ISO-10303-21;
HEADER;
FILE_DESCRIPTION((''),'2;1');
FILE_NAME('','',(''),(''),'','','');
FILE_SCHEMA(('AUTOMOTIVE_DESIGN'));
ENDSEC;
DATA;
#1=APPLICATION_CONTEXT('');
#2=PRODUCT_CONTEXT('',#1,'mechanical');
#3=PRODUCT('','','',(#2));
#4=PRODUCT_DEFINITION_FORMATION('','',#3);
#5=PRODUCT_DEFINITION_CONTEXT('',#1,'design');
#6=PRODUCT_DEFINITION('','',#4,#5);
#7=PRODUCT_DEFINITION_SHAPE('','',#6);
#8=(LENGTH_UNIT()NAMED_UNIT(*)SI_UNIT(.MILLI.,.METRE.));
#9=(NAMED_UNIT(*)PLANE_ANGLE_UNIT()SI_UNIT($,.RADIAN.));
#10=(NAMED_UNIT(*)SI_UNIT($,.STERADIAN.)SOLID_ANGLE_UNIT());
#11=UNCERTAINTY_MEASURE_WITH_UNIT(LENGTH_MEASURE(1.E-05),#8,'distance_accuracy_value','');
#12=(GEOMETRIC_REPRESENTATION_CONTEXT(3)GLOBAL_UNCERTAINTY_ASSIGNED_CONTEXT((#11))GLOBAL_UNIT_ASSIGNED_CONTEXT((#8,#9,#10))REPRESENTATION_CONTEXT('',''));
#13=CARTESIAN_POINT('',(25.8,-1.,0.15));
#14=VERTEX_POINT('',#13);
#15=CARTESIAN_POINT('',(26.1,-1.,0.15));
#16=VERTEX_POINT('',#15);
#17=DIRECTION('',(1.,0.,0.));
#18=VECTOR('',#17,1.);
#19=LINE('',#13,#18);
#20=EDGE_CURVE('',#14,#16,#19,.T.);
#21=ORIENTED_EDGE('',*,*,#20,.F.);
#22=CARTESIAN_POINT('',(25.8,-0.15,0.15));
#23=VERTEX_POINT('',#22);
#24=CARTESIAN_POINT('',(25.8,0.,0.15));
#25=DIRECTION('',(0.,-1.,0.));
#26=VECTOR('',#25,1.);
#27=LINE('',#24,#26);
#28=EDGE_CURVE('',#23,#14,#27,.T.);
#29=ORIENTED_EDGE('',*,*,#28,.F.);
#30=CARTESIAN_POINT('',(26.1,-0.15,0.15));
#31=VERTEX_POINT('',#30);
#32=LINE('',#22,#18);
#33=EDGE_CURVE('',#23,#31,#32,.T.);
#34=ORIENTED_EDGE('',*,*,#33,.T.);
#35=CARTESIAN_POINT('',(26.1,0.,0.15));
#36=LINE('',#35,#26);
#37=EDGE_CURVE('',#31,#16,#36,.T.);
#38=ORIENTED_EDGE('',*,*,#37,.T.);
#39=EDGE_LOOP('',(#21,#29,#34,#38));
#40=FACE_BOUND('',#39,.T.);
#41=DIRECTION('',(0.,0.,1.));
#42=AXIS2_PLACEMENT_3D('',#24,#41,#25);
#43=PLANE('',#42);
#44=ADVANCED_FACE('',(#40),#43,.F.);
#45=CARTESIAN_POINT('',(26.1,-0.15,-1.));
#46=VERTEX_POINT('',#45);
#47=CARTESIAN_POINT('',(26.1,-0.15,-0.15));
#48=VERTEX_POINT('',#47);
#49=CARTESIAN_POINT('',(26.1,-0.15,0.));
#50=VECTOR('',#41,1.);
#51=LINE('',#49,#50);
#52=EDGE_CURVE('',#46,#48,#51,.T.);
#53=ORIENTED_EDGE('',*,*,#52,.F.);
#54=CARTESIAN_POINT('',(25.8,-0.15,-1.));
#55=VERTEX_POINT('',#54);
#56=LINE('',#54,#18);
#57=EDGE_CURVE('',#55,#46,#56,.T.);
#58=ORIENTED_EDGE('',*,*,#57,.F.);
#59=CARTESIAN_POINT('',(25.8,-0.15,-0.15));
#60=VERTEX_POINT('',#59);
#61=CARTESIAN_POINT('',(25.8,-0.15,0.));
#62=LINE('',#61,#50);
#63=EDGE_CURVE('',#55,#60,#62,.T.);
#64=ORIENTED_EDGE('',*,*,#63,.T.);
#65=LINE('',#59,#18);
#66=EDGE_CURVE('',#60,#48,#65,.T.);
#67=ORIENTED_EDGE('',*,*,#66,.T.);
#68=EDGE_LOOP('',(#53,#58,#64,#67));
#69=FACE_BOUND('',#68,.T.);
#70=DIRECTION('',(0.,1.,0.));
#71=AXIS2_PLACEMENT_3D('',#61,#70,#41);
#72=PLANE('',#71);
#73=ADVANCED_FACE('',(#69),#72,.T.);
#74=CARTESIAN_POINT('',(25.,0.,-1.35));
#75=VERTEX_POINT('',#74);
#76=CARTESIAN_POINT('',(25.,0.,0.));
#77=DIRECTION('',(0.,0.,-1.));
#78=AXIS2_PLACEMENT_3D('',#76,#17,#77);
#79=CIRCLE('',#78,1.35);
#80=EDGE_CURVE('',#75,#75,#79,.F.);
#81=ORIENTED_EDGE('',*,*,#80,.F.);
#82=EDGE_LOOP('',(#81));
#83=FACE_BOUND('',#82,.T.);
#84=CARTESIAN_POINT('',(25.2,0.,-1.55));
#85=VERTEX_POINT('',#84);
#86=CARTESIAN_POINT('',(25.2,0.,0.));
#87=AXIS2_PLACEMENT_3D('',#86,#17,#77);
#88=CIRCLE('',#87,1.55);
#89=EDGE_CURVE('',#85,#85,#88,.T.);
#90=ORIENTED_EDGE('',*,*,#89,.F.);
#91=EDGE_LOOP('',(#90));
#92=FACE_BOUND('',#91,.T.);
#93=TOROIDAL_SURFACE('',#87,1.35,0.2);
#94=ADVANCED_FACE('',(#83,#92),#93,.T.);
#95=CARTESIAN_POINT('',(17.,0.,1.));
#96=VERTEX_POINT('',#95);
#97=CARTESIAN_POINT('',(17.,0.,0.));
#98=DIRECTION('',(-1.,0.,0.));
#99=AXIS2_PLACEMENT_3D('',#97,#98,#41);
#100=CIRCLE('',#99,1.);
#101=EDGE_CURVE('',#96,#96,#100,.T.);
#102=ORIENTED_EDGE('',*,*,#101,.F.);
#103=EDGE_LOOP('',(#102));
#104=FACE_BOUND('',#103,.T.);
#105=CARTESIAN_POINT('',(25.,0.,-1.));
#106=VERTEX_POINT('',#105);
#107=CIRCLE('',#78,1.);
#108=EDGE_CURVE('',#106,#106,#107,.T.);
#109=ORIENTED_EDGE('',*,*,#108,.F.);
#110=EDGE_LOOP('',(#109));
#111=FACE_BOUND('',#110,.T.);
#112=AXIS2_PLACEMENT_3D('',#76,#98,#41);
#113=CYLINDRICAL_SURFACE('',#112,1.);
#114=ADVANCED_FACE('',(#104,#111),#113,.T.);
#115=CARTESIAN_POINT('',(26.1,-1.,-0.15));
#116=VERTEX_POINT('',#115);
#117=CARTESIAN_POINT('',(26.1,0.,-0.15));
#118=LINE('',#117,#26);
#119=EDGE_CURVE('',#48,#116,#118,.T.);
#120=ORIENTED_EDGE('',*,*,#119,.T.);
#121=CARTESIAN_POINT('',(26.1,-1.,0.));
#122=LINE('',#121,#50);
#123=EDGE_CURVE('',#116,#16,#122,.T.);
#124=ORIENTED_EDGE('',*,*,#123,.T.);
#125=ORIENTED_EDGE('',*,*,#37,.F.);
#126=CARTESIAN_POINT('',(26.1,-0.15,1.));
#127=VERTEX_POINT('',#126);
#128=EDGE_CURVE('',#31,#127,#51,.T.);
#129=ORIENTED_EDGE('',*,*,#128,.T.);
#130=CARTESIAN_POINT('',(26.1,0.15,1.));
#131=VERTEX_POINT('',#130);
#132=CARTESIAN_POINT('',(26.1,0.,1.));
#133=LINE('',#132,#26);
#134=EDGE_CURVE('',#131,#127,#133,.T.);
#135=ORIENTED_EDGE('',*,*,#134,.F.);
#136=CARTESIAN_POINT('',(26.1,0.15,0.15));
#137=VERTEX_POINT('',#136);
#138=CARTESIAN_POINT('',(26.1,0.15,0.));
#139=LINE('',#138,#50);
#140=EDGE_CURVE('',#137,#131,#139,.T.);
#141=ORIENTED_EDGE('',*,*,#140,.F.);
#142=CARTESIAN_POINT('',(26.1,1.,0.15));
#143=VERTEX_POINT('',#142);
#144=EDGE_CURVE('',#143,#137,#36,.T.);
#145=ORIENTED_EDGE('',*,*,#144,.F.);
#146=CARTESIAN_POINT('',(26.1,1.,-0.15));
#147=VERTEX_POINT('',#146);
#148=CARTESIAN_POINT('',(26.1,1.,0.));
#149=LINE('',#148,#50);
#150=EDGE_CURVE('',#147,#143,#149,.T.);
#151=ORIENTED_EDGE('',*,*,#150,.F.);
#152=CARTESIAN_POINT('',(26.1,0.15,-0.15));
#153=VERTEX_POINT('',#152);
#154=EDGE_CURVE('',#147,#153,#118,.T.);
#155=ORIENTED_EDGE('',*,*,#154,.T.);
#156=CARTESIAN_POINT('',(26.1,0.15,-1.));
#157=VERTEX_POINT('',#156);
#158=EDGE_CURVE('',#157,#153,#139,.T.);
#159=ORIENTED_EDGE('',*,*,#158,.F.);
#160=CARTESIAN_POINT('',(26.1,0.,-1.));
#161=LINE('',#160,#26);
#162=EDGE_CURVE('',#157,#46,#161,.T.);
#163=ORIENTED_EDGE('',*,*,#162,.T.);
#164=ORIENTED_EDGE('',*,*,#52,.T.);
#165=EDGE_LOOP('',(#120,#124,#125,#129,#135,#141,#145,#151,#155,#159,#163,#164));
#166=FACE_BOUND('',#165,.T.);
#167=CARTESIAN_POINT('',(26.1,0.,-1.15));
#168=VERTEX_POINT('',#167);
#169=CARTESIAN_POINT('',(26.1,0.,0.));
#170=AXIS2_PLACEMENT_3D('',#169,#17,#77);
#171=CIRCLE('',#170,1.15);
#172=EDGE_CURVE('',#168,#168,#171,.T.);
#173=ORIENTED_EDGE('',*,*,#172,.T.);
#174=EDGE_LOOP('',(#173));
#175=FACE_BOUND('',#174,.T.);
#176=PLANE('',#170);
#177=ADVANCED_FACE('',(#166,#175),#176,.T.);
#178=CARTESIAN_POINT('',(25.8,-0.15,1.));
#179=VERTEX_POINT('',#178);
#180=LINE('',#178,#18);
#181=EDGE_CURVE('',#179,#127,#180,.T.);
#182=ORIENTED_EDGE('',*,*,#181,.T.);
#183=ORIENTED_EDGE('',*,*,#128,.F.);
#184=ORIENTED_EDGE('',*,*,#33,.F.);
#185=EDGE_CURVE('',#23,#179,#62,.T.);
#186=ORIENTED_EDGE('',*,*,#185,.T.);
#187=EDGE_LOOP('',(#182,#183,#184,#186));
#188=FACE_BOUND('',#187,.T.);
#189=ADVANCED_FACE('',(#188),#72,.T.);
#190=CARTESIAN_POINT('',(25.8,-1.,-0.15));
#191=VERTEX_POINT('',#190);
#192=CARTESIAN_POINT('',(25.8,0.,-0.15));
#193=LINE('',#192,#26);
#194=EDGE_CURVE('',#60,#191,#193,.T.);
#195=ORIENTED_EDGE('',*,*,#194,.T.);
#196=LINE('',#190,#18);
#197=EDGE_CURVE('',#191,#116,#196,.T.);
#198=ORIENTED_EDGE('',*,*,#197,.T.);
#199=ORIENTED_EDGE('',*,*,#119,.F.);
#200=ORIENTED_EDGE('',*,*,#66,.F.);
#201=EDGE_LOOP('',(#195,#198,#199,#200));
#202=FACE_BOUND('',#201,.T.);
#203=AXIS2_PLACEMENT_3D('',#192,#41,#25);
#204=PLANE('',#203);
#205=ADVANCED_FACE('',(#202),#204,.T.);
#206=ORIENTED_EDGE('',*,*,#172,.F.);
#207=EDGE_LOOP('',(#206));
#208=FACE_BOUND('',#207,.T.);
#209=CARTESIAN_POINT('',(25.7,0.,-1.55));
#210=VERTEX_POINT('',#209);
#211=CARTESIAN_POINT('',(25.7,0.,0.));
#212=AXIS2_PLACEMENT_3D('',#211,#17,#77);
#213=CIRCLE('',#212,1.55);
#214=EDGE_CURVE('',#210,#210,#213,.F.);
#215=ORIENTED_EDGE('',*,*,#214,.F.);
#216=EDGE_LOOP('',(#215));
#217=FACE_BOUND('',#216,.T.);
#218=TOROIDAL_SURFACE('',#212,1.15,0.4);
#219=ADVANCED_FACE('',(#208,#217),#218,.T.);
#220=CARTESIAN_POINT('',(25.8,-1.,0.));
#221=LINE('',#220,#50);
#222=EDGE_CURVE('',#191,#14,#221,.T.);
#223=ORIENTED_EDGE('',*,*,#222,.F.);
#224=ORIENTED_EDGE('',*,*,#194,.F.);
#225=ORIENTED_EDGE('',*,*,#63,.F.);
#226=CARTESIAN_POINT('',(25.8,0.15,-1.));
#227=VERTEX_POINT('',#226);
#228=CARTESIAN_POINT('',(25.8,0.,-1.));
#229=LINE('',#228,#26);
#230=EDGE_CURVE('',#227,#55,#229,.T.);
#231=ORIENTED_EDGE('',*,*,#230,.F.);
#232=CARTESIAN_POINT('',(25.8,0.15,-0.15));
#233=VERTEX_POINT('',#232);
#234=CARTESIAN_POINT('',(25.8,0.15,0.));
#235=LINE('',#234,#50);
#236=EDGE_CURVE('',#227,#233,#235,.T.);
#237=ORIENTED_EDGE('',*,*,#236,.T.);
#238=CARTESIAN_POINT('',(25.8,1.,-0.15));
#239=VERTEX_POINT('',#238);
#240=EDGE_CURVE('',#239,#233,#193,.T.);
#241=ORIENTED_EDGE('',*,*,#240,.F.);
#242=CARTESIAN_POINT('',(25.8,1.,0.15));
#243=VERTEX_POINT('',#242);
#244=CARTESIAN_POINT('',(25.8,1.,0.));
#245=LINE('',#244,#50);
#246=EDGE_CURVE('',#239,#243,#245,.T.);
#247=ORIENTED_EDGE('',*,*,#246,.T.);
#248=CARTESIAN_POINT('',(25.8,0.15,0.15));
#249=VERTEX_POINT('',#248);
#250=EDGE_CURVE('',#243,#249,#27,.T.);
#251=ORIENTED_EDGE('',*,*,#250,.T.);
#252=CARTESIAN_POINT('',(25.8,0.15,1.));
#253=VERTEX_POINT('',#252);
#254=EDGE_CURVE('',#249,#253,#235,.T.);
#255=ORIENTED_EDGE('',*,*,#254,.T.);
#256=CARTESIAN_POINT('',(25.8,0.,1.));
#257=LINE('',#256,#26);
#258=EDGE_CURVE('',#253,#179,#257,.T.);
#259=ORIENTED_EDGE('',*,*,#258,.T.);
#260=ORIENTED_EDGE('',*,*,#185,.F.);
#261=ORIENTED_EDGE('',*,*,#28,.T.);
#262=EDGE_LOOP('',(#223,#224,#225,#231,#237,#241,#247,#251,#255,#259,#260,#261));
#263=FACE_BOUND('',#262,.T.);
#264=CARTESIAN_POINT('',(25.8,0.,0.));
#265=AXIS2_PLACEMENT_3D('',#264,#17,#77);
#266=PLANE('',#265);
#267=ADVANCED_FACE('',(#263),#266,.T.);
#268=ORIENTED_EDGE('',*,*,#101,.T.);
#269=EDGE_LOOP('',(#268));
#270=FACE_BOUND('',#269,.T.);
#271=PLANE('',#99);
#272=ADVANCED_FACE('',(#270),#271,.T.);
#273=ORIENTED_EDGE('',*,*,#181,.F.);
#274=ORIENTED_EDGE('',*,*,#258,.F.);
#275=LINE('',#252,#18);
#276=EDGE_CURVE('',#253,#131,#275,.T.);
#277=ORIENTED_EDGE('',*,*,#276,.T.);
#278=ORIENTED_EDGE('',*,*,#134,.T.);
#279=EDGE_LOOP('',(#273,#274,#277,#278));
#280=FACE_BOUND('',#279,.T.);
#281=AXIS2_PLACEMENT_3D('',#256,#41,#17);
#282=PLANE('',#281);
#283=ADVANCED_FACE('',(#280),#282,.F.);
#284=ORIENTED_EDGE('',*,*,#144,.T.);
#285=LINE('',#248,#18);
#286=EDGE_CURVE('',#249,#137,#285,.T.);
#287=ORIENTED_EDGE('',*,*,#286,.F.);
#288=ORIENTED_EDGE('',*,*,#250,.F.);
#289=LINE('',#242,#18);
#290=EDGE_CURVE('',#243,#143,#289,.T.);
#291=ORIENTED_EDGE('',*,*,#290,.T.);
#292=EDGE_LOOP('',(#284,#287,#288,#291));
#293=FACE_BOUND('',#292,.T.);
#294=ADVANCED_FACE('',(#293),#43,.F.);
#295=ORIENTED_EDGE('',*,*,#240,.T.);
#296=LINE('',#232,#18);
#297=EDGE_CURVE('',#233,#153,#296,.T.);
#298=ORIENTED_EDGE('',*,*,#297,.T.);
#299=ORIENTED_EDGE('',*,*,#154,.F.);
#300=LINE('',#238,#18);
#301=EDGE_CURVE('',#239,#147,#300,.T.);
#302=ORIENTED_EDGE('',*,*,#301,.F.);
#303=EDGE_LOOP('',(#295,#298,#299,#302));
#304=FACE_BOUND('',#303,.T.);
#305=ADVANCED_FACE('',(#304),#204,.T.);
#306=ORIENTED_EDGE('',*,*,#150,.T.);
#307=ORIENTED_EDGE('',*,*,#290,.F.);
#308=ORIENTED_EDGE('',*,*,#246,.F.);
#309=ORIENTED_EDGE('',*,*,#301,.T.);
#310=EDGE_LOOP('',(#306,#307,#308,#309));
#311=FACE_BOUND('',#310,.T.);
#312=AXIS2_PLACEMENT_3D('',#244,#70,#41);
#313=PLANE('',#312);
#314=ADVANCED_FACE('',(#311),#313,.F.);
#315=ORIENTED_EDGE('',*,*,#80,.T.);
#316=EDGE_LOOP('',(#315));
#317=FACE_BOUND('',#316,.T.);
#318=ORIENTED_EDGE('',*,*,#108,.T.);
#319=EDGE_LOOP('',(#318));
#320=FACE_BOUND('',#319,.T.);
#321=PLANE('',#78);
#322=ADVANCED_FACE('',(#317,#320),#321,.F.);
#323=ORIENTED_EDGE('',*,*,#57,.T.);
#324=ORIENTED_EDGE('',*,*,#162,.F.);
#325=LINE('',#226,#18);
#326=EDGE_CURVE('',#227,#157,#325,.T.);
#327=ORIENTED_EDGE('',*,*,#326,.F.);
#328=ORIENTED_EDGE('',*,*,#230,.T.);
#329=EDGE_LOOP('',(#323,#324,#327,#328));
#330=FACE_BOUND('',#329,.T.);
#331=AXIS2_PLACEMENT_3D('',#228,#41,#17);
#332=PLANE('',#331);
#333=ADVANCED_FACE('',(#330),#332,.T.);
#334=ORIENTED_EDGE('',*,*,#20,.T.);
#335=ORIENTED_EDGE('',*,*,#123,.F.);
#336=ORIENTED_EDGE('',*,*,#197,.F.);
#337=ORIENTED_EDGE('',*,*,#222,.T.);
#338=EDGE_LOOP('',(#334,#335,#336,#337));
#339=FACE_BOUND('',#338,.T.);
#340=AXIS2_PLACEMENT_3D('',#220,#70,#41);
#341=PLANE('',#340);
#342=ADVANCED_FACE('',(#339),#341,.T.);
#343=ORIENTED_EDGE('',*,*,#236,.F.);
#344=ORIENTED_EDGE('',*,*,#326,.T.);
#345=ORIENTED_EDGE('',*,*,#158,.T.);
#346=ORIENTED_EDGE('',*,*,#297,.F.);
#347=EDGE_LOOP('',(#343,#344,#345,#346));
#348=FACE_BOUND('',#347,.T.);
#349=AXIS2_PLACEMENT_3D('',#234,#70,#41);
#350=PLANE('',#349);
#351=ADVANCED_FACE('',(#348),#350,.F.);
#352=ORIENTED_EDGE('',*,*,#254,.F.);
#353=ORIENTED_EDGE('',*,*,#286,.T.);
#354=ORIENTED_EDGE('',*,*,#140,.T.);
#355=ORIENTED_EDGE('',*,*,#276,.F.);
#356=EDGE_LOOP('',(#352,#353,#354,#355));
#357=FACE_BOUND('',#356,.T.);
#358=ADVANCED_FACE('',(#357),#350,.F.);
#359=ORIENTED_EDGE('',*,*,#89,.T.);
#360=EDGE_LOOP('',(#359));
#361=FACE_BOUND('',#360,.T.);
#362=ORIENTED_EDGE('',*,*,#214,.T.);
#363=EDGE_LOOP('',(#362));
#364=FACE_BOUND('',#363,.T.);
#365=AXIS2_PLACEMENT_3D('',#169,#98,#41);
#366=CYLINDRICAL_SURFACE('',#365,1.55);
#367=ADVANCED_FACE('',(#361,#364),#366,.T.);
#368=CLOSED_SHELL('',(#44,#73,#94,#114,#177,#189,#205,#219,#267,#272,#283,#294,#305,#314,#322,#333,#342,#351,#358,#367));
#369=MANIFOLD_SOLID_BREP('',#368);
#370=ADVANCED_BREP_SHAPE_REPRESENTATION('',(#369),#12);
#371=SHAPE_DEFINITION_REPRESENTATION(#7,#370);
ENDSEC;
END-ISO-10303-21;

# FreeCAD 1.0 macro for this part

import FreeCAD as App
import Part
import Sketcher


def edges_at(feature, points):
    """Names of the edges that pass closest to the given points."""
    edges = feature.Shape.Edges
    near = lambda p: min(range(len(edges)), key=lambda i: edges[i].distToShape(Part.Vertex(*p))[0])
    return sorted({f"Edge{near(p) + 1}" for p in points})


def add_polygon(sketch, points):
    """Adds a closed chain of lines whose ends are joined by coincident constraints."""
    first, n = sketch.GeometryCount, len(points)
    for a, b in zip(points, points[1:] + points[:1]):
        sketch.addGeometry(Part.LineSegment(App.Vector(*a, 0), App.Vector(*b, 0)), False)
    for i in range(n):
        sketch.addConstraint(Sketcher.Constraint("Coincident", first + i, 2, first + (i + 1) % n, 1))

doc = App.newDocument("Part")
body = doc.addObject("PartDesign::Body", "Body")

sketch1 = body.newObject("Sketcher::SketchObject", "Sketch")
sketch1.AttachmentSupport = (doc.getObject("YZ_Plane"), [""])
sketch1.MapMode = "FlatFace"
sketch1.addGeometry(Part.Circle(App.Vector(0, 0, 0), App.Vector(0, 0, 1), 1), False)
sketch1.addConstraint([
    Sketcher.Constraint("Coincident", 0, 3, -1, 1),
    Sketcher.Constraint("Diameter", 0, 2.0),
])
pad1 = body.newObject("PartDesign::Pad", "Pad")
pad1.Profile = sketch1
pad1.Length = 25

sketch2 = body.newObject("Sketcher::SketchObject", "Sketch001")
sketch2.AttachmentSupport = (doc.getObject("YZ_Plane"), [""])
sketch2.MapMode = "FlatFace"
sketch2.AttachmentOffset = App.Placement(App.Vector(0, 0, 25), App.Rotation())
sketch2.addGeometry(Part.Circle(App.Vector(0, 0, 0), App.Vector(0, 0, 1), 1.6), False)
sketch2.addConstraint([
    Sketcher.Constraint("Coincident", 0, 3, -1, 1),
    Sketcher.Constraint("Diameter", 0, 3.1),
])
pad2 = body.newObject("PartDesign::Pad", "Pad001")
pad2.Profile = sketch2
pad2.Length = 1.1

sketch3 = body.newObject("Sketcher::SketchObject", "Sketch002")
sketch3.AttachmentSupport = (doc.getObject("YZ_Plane"), [""])
sketch3.MapMode = "FlatFace"
sketch3.addGeometry(Part.Circle(App.Vector(0, 0, 0), App.Vector(0, 0, 1), 1), False)
sketch3.addConstraint([
    Sketcher.Constraint("Coincident", 0, 3, -1, 1),
    Sketcher.Constraint("Diameter", 0, 2.0),
])
pocket1 = body.newObject("PartDesign::Pocket", "Pocket")
pocket1.Profile = sketch3
pocket1.Length = 17
pocket1.Reversed = True

sketch4 = body.newObject("Sketcher::SketchObject", "Sketch003")
sketch4.AttachmentSupport = (doc.getObject("YZ_Plane"), [""])
sketch4.MapMode = "FlatFace"
sketch4.AttachmentOffset = App.Placement(App.Vector(0, 0, 26.1), App.Rotation())
add_polygon(sketch4, [(-0.15, -0.15), (-0.15, -1), (0.15, -1), (0.15, -0.15), (1, -0.15), (1, 0.15), (0.15, 0.15), (0.15, 1), (-0.15, 1), (-0.15, 0.15), (-1, 0.15), (-1, -0.15)])
sketch4.addConstraint([
    Sketcher.Constraint("Vertical", 0),
    Sketcher.Constraint("Horizontal", 1),
    Sketcher.Constraint("Vertical", 2),
    Sketcher.Constraint("Horizontal", 3),
    Sketcher.Constraint("Vertical", 4),
    Sketcher.Constraint("Horizontal", 5),
    Sketcher.Constraint("Vertical", 6),
    Sketcher.Constraint("Horizontal", 7),
    Sketcher.Constraint("Vertical", 8),
    Sketcher.Constraint("Horizontal", 9),
    Sketcher.Constraint("Vertical", 10),
    Sketcher.Constraint("Horizontal", 11),
    Sketcher.Constraint("Symmetric", 0, 2, 6, 2, -1, 1),
    Sketcher.Constraint("Symmetric", 2, 2, 8, 2, -1, 1),
    Sketcher.Constraint("Symmetric", 4, 2, 10, 2, -1, 1),
    Sketcher.Constraint("Symmetric", 5, 2, 8, 2, -2),
    Sketcher.Constraint("Equal", 11, 0),
    Sketcher.Constraint("Equal", 7, 4),
    Sketcher.Constraint("DistanceX", 1, 1, 1, 2, 0.3),
    Sketcher.Constraint("DistanceY", 0, 2, -1, 1, 1.0),
])
pocket2 = body.newObject("PartDesign::Pocket", "Pocket001")
pocket2.Profile = sketch4
pocket2.Length = 0.3
doc.recompute()

fillet = body.newObject("PartDesign::Fillet", "Fillet")
fillet.Base = (pocket2, edges_at(pocket2, [(26.1, 0, 1.55)]))
fillet.Radius = 0.4
doc.recompute()

fillet2 = body.newObject("PartDesign::Fillet", "Fillet001")
fillet2.Base = (fillet, edges_at(fillet, [(25, 0, 1.55)]))
fillet2.Radius = 0.2

doc.recompute()
